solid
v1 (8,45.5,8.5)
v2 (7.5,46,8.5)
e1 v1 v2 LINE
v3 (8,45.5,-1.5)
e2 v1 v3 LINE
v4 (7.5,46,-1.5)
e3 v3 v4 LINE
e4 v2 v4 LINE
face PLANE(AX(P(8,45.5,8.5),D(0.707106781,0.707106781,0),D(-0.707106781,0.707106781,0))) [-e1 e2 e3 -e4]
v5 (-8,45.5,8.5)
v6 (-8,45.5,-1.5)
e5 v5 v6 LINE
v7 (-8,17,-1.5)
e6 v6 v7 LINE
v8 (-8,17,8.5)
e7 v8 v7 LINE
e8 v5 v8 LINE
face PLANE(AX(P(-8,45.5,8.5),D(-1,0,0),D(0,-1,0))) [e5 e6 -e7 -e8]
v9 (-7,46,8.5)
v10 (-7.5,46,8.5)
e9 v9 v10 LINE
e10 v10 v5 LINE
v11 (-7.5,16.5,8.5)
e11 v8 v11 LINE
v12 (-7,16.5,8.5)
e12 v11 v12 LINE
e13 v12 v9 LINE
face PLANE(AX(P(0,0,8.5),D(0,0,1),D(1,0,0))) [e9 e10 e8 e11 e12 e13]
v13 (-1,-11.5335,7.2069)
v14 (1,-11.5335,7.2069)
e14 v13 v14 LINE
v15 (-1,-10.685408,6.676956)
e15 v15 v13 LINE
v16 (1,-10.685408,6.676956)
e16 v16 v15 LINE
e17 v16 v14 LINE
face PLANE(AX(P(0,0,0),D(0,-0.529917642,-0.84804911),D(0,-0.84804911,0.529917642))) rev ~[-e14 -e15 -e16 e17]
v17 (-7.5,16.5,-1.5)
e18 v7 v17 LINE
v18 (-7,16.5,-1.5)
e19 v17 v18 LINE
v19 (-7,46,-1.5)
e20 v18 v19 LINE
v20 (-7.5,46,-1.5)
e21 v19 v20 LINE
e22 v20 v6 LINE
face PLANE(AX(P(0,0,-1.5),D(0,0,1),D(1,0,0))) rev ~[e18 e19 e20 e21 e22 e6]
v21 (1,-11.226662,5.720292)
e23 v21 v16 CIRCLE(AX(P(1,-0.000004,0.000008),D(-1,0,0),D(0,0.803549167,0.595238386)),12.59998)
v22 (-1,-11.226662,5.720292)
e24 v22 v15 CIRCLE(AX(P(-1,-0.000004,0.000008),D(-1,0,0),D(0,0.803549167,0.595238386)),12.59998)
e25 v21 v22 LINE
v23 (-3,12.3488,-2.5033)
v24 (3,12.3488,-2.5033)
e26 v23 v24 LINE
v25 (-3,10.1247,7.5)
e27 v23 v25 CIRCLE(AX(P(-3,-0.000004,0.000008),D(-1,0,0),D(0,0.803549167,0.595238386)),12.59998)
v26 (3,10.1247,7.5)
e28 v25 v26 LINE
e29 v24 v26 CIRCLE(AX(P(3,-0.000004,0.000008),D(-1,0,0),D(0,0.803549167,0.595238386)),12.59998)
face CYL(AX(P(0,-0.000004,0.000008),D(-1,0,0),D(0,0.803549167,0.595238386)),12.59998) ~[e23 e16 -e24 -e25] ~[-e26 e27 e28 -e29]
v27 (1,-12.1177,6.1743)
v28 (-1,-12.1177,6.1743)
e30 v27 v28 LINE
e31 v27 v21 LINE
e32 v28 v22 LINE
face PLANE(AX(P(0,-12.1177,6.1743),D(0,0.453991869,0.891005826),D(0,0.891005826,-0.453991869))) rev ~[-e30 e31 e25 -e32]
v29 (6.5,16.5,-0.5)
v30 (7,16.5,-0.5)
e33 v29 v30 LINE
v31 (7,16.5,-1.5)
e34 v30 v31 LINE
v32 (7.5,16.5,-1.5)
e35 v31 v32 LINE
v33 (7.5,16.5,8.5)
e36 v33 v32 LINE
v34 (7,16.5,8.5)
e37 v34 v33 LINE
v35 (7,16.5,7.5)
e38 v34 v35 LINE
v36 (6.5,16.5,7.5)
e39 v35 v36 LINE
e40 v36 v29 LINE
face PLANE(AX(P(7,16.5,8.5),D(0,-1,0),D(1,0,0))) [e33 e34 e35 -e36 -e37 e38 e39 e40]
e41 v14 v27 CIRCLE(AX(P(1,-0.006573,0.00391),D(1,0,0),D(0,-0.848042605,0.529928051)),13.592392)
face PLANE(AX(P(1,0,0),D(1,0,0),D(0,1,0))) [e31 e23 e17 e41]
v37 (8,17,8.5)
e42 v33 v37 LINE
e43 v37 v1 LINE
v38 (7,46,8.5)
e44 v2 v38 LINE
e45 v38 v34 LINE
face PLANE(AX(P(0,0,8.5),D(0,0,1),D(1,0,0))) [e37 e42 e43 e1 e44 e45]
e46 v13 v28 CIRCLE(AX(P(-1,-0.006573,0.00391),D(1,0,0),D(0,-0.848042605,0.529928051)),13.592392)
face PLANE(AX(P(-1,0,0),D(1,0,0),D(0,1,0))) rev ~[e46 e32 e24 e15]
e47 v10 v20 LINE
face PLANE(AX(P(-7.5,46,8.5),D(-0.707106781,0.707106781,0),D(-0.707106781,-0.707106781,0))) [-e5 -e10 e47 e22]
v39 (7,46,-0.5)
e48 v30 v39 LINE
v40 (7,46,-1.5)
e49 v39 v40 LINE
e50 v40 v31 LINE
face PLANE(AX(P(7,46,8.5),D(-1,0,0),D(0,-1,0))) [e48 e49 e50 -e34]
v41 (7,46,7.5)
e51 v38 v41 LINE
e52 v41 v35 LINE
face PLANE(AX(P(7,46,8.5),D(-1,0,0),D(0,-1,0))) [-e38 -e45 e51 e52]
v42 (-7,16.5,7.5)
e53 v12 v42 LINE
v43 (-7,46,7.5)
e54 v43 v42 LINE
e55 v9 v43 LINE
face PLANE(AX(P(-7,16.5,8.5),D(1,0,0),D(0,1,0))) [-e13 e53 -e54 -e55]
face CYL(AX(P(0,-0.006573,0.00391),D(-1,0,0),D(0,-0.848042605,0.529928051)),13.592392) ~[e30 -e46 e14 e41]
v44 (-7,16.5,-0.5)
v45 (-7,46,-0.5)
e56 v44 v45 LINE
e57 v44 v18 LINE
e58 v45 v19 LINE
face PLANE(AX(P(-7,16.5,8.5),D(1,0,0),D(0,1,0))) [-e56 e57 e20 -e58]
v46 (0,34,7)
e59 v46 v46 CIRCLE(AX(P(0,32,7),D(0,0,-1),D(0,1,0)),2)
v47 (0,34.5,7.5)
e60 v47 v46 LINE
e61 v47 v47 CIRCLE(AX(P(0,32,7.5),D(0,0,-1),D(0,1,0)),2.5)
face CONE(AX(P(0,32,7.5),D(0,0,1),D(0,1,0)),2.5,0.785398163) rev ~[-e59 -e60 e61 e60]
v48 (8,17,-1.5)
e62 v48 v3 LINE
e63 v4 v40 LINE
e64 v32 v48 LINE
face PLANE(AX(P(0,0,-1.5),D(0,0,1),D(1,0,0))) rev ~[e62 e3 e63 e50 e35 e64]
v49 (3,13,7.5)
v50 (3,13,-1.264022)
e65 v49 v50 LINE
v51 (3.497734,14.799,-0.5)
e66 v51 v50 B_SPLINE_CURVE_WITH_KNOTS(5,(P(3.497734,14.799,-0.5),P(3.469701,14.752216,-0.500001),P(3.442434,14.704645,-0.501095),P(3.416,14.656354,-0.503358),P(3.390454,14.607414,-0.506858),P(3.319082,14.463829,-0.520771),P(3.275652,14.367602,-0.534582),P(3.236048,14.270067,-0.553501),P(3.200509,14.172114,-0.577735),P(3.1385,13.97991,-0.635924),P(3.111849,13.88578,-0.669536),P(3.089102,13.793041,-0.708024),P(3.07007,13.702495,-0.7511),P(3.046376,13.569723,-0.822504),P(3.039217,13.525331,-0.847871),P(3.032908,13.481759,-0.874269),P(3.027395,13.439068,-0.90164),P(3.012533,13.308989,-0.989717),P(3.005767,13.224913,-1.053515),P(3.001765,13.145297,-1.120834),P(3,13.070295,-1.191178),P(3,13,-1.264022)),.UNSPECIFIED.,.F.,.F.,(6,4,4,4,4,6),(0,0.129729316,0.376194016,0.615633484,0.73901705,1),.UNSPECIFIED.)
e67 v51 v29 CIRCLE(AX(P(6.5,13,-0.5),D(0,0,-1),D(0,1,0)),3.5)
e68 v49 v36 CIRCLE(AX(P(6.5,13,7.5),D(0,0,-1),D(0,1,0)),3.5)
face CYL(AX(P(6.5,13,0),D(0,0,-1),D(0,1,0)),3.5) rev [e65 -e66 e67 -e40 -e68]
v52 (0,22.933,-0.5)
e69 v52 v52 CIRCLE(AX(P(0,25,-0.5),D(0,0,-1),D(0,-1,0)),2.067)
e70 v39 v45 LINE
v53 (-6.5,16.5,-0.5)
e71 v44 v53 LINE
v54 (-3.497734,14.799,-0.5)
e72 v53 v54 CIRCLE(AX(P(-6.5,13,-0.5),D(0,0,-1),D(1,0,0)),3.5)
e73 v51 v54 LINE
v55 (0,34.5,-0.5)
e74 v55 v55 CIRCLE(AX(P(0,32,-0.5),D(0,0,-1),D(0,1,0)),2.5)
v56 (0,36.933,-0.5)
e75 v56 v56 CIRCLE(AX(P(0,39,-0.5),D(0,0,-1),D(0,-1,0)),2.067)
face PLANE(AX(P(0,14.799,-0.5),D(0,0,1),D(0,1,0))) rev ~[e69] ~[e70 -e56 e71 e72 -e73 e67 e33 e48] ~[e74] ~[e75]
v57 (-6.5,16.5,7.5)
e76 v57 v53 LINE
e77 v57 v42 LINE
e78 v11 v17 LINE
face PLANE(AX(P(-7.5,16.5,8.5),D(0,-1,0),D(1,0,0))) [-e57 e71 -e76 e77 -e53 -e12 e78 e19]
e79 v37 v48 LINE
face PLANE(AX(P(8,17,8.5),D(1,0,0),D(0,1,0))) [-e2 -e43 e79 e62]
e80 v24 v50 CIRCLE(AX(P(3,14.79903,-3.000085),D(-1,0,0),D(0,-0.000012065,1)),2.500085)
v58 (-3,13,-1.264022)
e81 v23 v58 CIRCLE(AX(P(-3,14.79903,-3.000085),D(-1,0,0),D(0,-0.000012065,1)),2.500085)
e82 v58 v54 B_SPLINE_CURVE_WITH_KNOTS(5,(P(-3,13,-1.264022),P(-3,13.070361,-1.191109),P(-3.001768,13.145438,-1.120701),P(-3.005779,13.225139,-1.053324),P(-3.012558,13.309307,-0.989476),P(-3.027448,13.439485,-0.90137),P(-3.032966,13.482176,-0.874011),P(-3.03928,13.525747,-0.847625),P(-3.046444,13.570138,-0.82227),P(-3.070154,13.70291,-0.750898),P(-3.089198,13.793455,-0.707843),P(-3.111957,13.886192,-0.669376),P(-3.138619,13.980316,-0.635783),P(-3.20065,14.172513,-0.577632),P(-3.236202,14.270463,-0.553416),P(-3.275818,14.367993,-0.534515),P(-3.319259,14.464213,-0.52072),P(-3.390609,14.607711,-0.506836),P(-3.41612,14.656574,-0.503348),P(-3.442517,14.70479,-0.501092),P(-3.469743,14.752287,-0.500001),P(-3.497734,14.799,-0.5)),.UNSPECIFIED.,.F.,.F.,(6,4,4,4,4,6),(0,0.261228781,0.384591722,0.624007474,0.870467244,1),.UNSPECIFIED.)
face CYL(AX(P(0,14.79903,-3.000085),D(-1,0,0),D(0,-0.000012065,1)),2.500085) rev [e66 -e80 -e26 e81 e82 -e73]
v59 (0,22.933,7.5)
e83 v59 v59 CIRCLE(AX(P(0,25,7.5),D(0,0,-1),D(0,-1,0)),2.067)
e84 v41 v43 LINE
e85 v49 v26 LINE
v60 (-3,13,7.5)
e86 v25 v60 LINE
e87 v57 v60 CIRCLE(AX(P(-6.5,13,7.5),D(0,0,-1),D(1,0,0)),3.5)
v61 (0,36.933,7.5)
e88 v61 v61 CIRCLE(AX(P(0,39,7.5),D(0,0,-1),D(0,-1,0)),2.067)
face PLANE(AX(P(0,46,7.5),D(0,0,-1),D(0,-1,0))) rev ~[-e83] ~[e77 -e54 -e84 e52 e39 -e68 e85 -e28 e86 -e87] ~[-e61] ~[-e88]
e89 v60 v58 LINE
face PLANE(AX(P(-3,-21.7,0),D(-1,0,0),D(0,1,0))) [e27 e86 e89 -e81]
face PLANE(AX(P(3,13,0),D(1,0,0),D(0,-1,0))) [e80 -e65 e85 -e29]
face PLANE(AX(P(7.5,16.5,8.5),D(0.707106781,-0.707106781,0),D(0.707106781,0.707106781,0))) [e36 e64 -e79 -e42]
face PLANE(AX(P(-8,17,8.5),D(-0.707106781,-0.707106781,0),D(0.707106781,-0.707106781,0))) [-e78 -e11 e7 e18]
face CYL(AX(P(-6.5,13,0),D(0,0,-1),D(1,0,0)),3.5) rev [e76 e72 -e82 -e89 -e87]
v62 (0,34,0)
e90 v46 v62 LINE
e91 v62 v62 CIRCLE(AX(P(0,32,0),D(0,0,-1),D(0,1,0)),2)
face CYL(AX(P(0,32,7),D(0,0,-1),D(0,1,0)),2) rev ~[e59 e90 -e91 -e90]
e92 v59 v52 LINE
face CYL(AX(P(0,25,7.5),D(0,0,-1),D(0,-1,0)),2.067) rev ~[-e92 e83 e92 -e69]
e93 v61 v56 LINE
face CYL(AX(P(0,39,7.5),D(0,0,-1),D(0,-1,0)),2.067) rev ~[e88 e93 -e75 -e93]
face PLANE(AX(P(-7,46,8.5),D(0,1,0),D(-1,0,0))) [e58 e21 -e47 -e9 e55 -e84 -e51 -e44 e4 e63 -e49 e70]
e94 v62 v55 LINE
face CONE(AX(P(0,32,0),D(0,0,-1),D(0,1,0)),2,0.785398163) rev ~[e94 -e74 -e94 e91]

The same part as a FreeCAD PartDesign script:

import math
import FreeCAD as App
import Part
import Sketcher
from FreeCAD import Vector
Q = App.Units.Quantity


def add_polygon(sketch, points):
    """Adds a closed chain of lines whose ends are joined by coincident constraints."""
    first, n = sketch.GeometryCount, len(points)
    for a, b in zip(points, points[1:] + points[:1]):
        sketch.addGeometry(Part.LineSegment(App.Vector(*a, 0), App.Vector(*b, 0)), False)
    for i in range(n):
        sketch.addConstraint(Sketcher.Constraint("Coincident", first + i, 2, first + (i + 1) % n, 1))

doc = App.newDocument("Part")
params = doc.addObject("Spreadsheet::Sheet", "Params")
for row, (alias, value) in enumerate([
    ("sketch1_radius", "12.6 mm"),
    ("sketch1_radius2", "2.5 mm"),
    ("sketch1_height", "8 mm"),
    ("pad1_length", "14 mm"),
    ("sketch2_radius", "3.5 mm"),
    ("sketch2_width", "14 mm"),
    ("sketch2_width2", "6 mm"),
    ("sketch2_height", "41.2 mm"),
    ("sketch2_height2", "34.7 mm"),
    ("pocket1_length", "30 mm"),
    ("sketch3_width", "0.5 mm"),
    ("sketch3_height", "29.5 mm"),
    ("sketch3_height2", "28.5 mm"),
    ("pad2_length", "10 mm"),
    ("sketch4_width", "0.5 mm"),
    ("sketch4_height", "28.5 mm"),
    ("sketch4_height2", "29.5 mm"),
    ("pad3_length", "10 mm"),
    ("sketch5_height", "8 mm"),
    ("sketch5_height2", "7 mm"),
    ("sketch5_width", "2.5 mm"),
    ("groove_angle", "360 deg"),
    ("hole_diameter", "4.134 mm"),
    ("hole_depth", "8 mm"),
    ("hole2_diameter", "4.134 mm"),
    ("hole2_depth", "8 mm"),
    ("sketch8_length", "13.6 mm"),
    ("pad4_length", "2 mm"),
], start=1):
    params.set(f"A{row}", alias)
    params.set(f"B{row}", "=" + value)
    params.setAlias(f"B{row}", alias)

body = doc.addObject("PartDesign::Body", "Body")

sketch1 = doc.addObject("Sketcher::SketchObject", "Sketch")
body.addObject(sketch1)
sketch1.AttachmentSupport = (doc.YZ_Plane, [""])
sketch1.MapMode = "FlatFace"
sketch1.addGeometry([
    Part.LineSegment(Vector(46, 7.5, 0), Vector(10.1247, 7.5, 0)),
    Part.ArcOfCircle(Part.Circle(Vector(0, 0, 0), Vector(0, 0, 1), 12.599982), math.radians(36.529667), math.radians(348.540513)),
    Part.ArcOfCircle(Part.Circle(Vector(14.799, -3, 0), Vector(0, 0, 1), 2.5), math.radians(90), math.radians(168.540398)),
    Part.LineSegment(Vector(14.799, -0.5, 0), Vector(46, -0.5, 0)),
    Part.LineSegment(Vector(46, -0.5, 0), Vector(46, 7.5, 0)),
], False)
sketch1.addConstraint([
    Sketcher.Constraint("Coincident", 0, 2, 1, 1),
    Sketcher.Constraint("Tangent", 1, 2, 2, 2),
    Sketcher.Constraint("Tangent", 2, 1, 3, 1),
    Sketcher.Constraint("Coincident", 3, 2, 4, 1),
    Sketcher.Constraint("Coincident", 4, 2, 0, 1),
    Sketcher.Constraint("Horizontal", 0),
    Sketcher.Constraint("Horizontal", 3),
    Sketcher.Constraint("Vertical", 4),
    Sketcher.Constraint("Coincident", 1, 3, -1, 1),
    Sketcher.Constraint("Radius", 1, Q("12.6 mm")),
    Sketcher.Constraint("Radius", 2, Q("2.5 mm")),
    Sketcher.Constraint("DistanceY", 4, 1, 4, 2, Q("8 mm")),
    Sketcher.Constraint("DistanceY", 2, 3, -1, 1, Q("3 mm")),
    Sketcher.Constraint("DistanceX", -1, 1, 3, 2, Q("46 mm")),
])
sketch1.setExpression("Constraints[9]", "Params.sketch1_radius")
sketch1.setExpression("Constraints[10]", "Params.sketch1_radius2")
sketch1.setExpression("Constraints[11]", "Params.sketch1_height")
pad1 = doc.addObject("PartDesign::Pad", "Pad")
body.addObject(pad1)
pad1.Profile = sketch1
pad1.setExpression("Length", "Params.pad1_length")
pad1.Midplane = True

sketch2 = doc.addObject("Sketcher::SketchObject", "Sketch001")
body.addObject(sketch2)
sketch2.AttachmentSupport = (doc.XY_Plane, [""])
sketch2.MapMode = "FlatFace"
sketch2.addGeometry([
    Part.LineSegment(Vector(-7, 16.5, 0), Vector(-7, -24.7, 0)),
    Part.LineSegment(Vector(-7, -24.7, 0), Vector(7, -24.7, 0)),
    Part.LineSegment(Vector(7, -24.7, 0), Vector(7, 16.5, 0)),
    Part.LineSegment(Vector(7, 16.5, 0), Vector(6.5, 16.5, 0)),
    Part.ArcOfCircle(Part.Circle(Vector(6.5, 13, 0), Vector(0, 0, 1), 3.5), math.radians(90), math.radians(180)),
    Part.LineSegment(Vector(3, 13, 0), Vector(3, -21.7, 0)),
    Part.LineSegment(Vector(3, -21.7, 0), Vector(-3, -21.7, 0)),
    Part.LineSegment(Vector(-3, -21.7, 0), Vector(-3, 13, 0)),
    Part.ArcOfCircle(Part.Circle(Vector(-6.5, 13, 0), Vector(0, 0, 1), 3.5), math.radians(0), math.radians(90)),
    Part.LineSegment(Vector(-6.5, 16.5, 0), Vector(-7, 16.5, 0)),
], False)
sketch2.addConstraint([
    Sketcher.Constraint("Coincident", 0, 2, 1, 1),
    Sketcher.Constraint("Coincident", 1, 2, 2, 1),
    Sketcher.Constraint("Coincident", 2, 2, 3, 1),
    Sketcher.Constraint("Tangent", 3, 2, 4, 1),
    Sketcher.Constraint("Tangent", 4, 2, 5, 1),
    Sketcher.Constraint("Coincident", 5, 2, 6, 1),
    Sketcher.Constraint("Coincident", 6, 2, 7, 1),
    Sketcher.Constraint("Tangent", 7, 2, 8, 1),
    Sketcher.Constraint("Tangent", 8, 2, 9, 1),
    Sketcher.Constraint("Coincident", 9, 2, 0, 1),
    Sketcher.Constraint("Vertical", 0),
    Sketcher.Constraint("Horizontal", 1),
    Sketcher.Constraint("Vertical", 2),
    Sketcher.Constraint("Horizontal", 3),
    Sketcher.Constraint("Vertical", 5),
    Sketcher.Constraint("Horizontal", 6),
    Sketcher.Constraint("Vertical", 7),
    Sketcher.Constraint("Horizontal", 9),
    Sketcher.Constraint("Equal", 4, 8),
    Sketcher.Constraint("Symmetric", 4, 3, 8, 3, -2),
    Sketcher.Constraint("Equal", 3, 9),
    Sketcher.Constraint("Radius", 4, Q("3.5 mm")),
    Sketcher.Constraint("DistanceX", 1, 1, 1, 2, Q("14 mm")),
    Sketcher.Constraint("DistanceX", 6, 2, 6, 1, Q("6 mm")),
    Sketcher.Constraint("DistanceY", 0, 2, 0, 1, Q("41.2 mm")),
    Sketcher.Constraint("DistanceY", 5, 2, 5, 1, Q("34.7 mm")),
    Sketcher.Constraint("DistanceY", -1, 1, 4, 3, Q("13 mm")),
])
sketch2.setExpression("Constraints[21]", "Params.sketch2_radius")
sketch2.setExpression("Constraints[22]", "Params.sketch2_width")
sketch2.setExpression("Constraints[23]", "Params.sketch2_width2")
sketch2.setExpression("Constraints[24]", "Params.sketch2_height")
sketch2.setExpression("Constraints[25]", "Params.sketch2_height2")
pocket1 = doc.addObject("PartDesign::Pocket", "Pocket")
body.addObject(pocket1)
pocket1.Profile = sketch2
pocket1.setExpression("Length", "Params.pocket1_length")
pocket1.Midplane = True

sketch3 = doc.addObject("Sketcher::SketchObject", "Sketch002")
body.addObject(sketch3)
sketch3.AttachmentSupport = (doc.XY_Plane, [""])
sketch3.MapMode = "FlatFace"
sketch3.AttachmentOffset = App.Placement(Vector(0, 0, 8.5), App.Rotation())
add_polygon(sketch3, [(7, 46), (7, 16.5), (7.5, 16.5), (8, 17), (8, 45.5), (7.5, 46)])
sketch3.addConstraint([
    Sketcher.Constraint("Vertical", 0),
    Sketcher.Constraint("Horizontal", 1),
    Sketcher.Constraint("Vertical", 3),
    Sketcher.Constraint("Horizontal", 5),
    Sketcher.Constraint("Perpendicular", 2, 4),
    Sketcher.Constraint("Vertical", 1, 2, 4, 2),
    Sketcher.Constraint("Equal", 2, 4),
    Sketcher.Constraint("DistanceX", 1, 1, 1, 2, Q("0.5 mm")),
    Sketcher.Constraint("DistanceY", 0, 2, 0, 1, Q("29.5 mm")),
    Sketcher.Constraint("DistanceY", 3, 1, 3, 2, Q("28.5 mm")),
    Sketcher.Constraint("DistanceX", -1, 1, 0, 2, Q("7 mm")),
    Sketcher.Constraint("DistanceY", -1, 1, 2, 2, Q("17 mm")),
])
sketch3.setExpression("Constraints[13]", "Params.sketch3_width")
sketch3.setExpression("Constraints[14]", "Params.sketch3_height")
sketch3.setExpression("Constraints[15]", "Params.sketch3_height2")
pad2 = doc.addObject("PartDesign::Pad", "Pad001")
body.addObject(pad2)
pad2.Profile = sketch3
pad2.setExpression("Length", "Params.pad2_length")
pad2.Reversed = True

sketch4 = doc.addObject("Sketcher::SketchObject", "Sketch003")
body.addObject(sketch4)
sketch4.AttachmentSupport = (doc.XY_Plane, [""])
sketch4.MapMode = "FlatFace"
sketch4.AttachmentOffset = App.Placement(Vector(0, 0, 8.5), App.Rotation())
add_polygon(sketch4, [(-8, 45.5), (-8, 17), (-7.5, 16.5), (-7, 16.5), (-7, 46), (-7.5, 46)])
sketch4.addConstraint([
    Sketcher.Constraint("Vertical", 0),
    Sketcher.Constraint("Horizontal", 2),
    Sketcher.Constraint("Vertical", 3),
    Sketcher.Constraint("Horizontal", 4),
    Sketcher.Constraint("Perpendicular", 1, 5),
    Sketcher.Constraint("Vertical", 1, 2, 4, 2),
    Sketcher.Constraint("Equal", 1, 5),
    Sketcher.Constraint("DistanceX", 2, 1, 2, 2, Q("0.5 mm")),
    Sketcher.Constraint("DistanceY", 0, 2, 0, 1, Q("28.5 mm")),
    Sketcher.Constraint("DistanceY", 3, 1, 3, 2, Q("29.5 mm")),
    Sketcher.Constraint("DistanceX", 0, 2, -1, 1, Q("8 mm")),
    Sketcher.Constraint("DistanceY", -1, 1, 0, 2, Q("17 mm")),
])
sketch4.setExpression("Constraints[13]", "Params.sketch4_width")
sketch4.setExpression("Constraints[14]", "Params.sketch4_height")
sketch4.setExpression("Constraints[15]", "Params.sketch4_height2")
pad3 = doc.addObject("PartDesign::Pad", "Pad002")
body.addObject(pad3)
pad3.Profile = sketch4
pad3.setExpression("Length", "Params.pad3_length")
pad3.Reversed = True

sketch5 = doc.addObject("Sketcher::SketchObject", "Sketch004")
body.addObject(sketch5)
sketch5.AttachmentSupport = (doc.YZ_Plane, [""])
sketch5.MapMode = "FlatFace"
add_polygon(sketch5, [(32, 7.5), (32, -0.5), (34.5, -0.5), (34, 0), (34, 7), (34.5, 7.5)])
sketch5.addGeometry(Part.LineSegment(Vector(32, 7.5, 0), Vector(32, -0.5, 0)), True)
sketch5.addConstraint([
    Sketcher.Constraint("Vertical", 0),
    Sketcher.Constraint("Horizontal", 1),
    Sketcher.Constraint("Vertical", 3),
    Sketcher.Constraint("Horizontal", 5),
    Sketcher.Constraint("Vertical", 6),
    Sketcher.Constraint("Coincident", 6, 1, 5, 2),
    Sketcher.Constraint("PointOnObject", 2, 2, -1),
    Sketcher.Constraint("Perpendicular", 2, 4),
    Sketcher.Constraint("Horizontal", 1, 2, 6, 2),
    Sketcher.Constraint("Vertical", 1, 2, 4, 2),
    Sketcher.Constraint("Equal", 2, 4),
    Sketcher.Constraint("DistanceY", 0, 2, 0, 1, Q("8 mm")),
    Sketcher.Constraint("DistanceY", 3, 1, 3, 2, Q("7 mm")),
    Sketcher.Constraint("DistanceX", 1, 1, 1, 2, Q("2.5 mm")),
    Sketcher.Constraint("DistanceX", -1, 1, 0, 2, Q("32 mm")),
])
sketch5.setExpression("Constraints[17]", "Params.sketch5_height")
sketch5.setExpression("Constraints[18]", "Params.sketch5_height2")
sketch5.setExpression("Constraints[19]", "Params.sketch5_width")
groove = doc.addObject("PartDesign::Groove", "Groove")
body.addObject(groove)
groove.Profile = sketch5
groove.ReferenceAxis = (sketch5, ["Axis0"])
groove.setExpression("Angle", "Params.groove_angle")

sketch6 = doc.addObject("Sketcher::SketchObject", "Sketch005")
body.addObject(sketch6)
sketch6.AttachmentSupport = (doc.XY_Plane, [""])
sketch6.MapMode = "FlatFace"
sketch6.AttachmentOffset = App.Placement(Vector(0, 0, 7.5), App.Rotation())
sketch6.addGeometry(Part.Circle(Vector(0, 25, 0), Vector(0, 0, 1), 2.067), False)
sketch6.addConstraint([
    Sketcher.Constraint("PointOnObject", 0, 3, -2),
    Sketcher.Constraint("Diameter", 0, Q("4.134 mm")),
    Sketcher.Constraint("DistanceY", -1, 1, 0, 3, Q("25 mm")),
])
doc.recompute()
hole = doc.addObject("PartDesign::Hole", "Hole")
body.addObject(hole)
hole.Profile = sketch6
hole.ThreadType = "None"
hole.setExpression("Diameter", "Params.hole_diameter")
hole.DepthType = "Dimension"
hole.setExpression("Depth", "Params.hole_depth")
hole.DrillPoint = "Flat"

sketch7 = doc.addObject("Sketcher::SketchObject", "Sketch006")
body.addObject(sketch7)
sketch7.AttachmentSupport = (doc.XY_Plane, [""])
sketch7.MapMode = "FlatFace"
sketch7.AttachmentOffset = App.Placement(Vector(0, 0, 7.5), App.Rotation())
sketch7.addGeometry(Part.Circle(Vector(0, 39, 0), Vector(0, 0, 1), 2.067), False)
sketch7.addConstraint([
    Sketcher.Constraint("PointOnObject", 0, 3, -2),
    Sketcher.Constraint("Diameter", 0, Q("4.134 mm")),
    Sketcher.Constraint("DistanceY", -1, 1, 0, 3, Q("39 mm")),
])
doc.recompute()
hole2 = doc.addObject("PartDesign::Hole", "Hole001")
body.addObject(hole2)
hole2.Profile = sketch7
hole2.ThreadType = "None"
hole2.setExpression("Diameter", "Params.hole2_diameter")
hole2.DepthType = "Dimension"
hole2.setExpression("Depth", "Params.hole2_depth")
hole2.DrillPoint = "Flat"

sketch8 = doc.addObject("Sketcher::SketchObject", "Sketch007")
body.addObject(sketch8)
sketch8.AttachmentSupport = (doc.YZ_Plane, [""])
sketch8.MapMode = "FlatFace"
sketch8.addGeometry([
    Part.LineSegment(Vector(0, 0, 0), Vector(-11.5335, 7.2069, 0)),
    Part.ArcOfCircle(Part.Circle(Vector(-0.006573, 0.00391, 0), Vector(0, 0, 1), 13.592392), math.radians(147.999406), math.radians(153.00202)),
    Part.LineSegment(Vector(-12.1177, 6.1743, 0), Vector(0, 0, 0)),
], False)
sketch8.addConstraint([
    Sketcher.Constraint("Coincident", 0, 2, 1, 1),
    Sketcher.Constraint("Coincident", 1, 2, 2, 1),
    Sketcher.Constraint("Coincident", 2, 2, 0, 1),
    Sketcher.Constraint("Coincident", 2, 2, -1, 1),
    Sketcher.Constraint("Equal", 0, 2),
    Sketcher.Constraint("Angle", 0, Q("148 deg")),
    Sketcher.Constraint("Angle", 2, Q("-27 deg")),
    Sketcher.Constraint("Distance", 0, Q("13.6 mm")),
    Sketcher.Constraint("Radius", 1, Q("13.5924 mm")),
])
sketch8.setExpression("Constraints[7]", "Params.sketch8_length")
pad4 = doc.addObject("PartDesign::Pad", "Pad003")
body.addObject(pad4)
pad4.Profile = sketch8
pad4.setExpression("Length", "Params.pad4_length")
pad4.Midplane = True

doc.recompute()
